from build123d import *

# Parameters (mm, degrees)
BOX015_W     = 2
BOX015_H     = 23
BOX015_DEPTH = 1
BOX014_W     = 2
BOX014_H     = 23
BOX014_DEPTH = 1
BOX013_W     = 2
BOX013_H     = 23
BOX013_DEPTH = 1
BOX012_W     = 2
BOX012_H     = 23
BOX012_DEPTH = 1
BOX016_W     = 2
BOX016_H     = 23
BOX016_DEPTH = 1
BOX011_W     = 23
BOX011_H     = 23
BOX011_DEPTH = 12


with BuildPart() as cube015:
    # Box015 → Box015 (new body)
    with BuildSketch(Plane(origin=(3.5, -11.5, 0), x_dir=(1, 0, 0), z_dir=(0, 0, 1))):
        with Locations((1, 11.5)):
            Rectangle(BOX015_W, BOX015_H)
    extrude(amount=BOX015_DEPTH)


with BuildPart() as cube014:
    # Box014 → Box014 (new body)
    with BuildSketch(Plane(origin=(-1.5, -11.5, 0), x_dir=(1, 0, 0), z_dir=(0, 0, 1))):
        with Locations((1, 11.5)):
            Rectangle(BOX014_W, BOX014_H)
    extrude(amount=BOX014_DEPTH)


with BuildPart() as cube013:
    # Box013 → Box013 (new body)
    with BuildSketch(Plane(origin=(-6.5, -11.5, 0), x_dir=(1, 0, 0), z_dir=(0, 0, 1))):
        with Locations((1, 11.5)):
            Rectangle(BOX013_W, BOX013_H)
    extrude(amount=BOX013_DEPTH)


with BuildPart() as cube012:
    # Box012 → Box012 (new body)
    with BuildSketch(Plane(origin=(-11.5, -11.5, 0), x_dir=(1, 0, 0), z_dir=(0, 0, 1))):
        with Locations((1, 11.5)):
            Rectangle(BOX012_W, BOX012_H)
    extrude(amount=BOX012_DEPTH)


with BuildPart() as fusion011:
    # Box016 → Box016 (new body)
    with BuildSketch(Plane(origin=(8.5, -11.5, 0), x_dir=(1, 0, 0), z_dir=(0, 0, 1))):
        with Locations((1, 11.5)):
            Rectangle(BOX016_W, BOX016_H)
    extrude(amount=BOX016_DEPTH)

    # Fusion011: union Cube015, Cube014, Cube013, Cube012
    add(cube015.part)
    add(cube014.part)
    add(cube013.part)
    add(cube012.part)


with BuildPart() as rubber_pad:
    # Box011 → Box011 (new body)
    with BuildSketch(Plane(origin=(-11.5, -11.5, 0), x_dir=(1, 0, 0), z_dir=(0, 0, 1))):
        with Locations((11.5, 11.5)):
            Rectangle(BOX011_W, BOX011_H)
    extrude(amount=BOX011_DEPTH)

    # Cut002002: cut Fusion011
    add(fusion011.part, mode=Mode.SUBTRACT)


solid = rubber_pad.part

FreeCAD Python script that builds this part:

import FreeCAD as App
import Part
import Sketcher

V = App.Vector
Q = App.Units.Quantity


def add_polygon(sketch, points):
    """Adds a closed chain of lines whose ends are joined by coincident constraints."""
    first, n = sketch.GeometryCount, len(points)
    for a, b in zip(points, points[1:] + points[:1]):
        sketch.addGeometry(Part.LineSegment(App.Vector(*a, 0), App.Vector(*b, 0)), False)
    for i in range(n):
        sketch.addConstraint(Sketcher.Constraint("Coincident", first + i, 2, first + (i + 1) % n, 1))

doc = App.newDocument("Part")
body = doc.addObject("PartDesign::Body", "Body")

# Sketch on XY plane
sketch1 = body.newObject("Sketcher::SketchObject", "Sketch")
sketch1.AttachmentSupport = (doc.getObject("XY_Plane"), [""])
sketch1.MapMode = "FlatFace"
add_polygon(sketch1, [(3.5, 11.5), (3.5, -11.5), (5.5, -11.5), (5.5, 11.5)])  # lines 0-3
sketch1.addConstraint(Sketcher.Constraint("Vertical", 0))
sketch1.addConstraint(Sketcher.Constraint("Horizontal", 1))
sketch1.addConstraint(Sketcher.Constraint("Vertical", 2))
sketch1.addConstraint(Sketcher.Constraint("Horizontal", 3))
sketch1.addConstraint(Sketcher.Constraint("DistanceX", 1, 1, 1, 2, Q("2 mm")))
sketch1.addConstraint(Sketcher.Constraint("DistanceY", 0, 2, 0, 1, Q("23 mm")))
sketch1.addConstraint(Sketcher.Constraint("DistanceX", -1, 1, 0, 2, Q("3.5 mm")))
sketch1.addConstraint(Sketcher.Constraint("DistanceY", 0, 2, -1, 1, Q("11.5 mm")))
pad1 = body.newObject("PartDesign::Pad", "Pad")
pad1.Profile = sketch1
pad1.Length = 1
body2 = doc.addObject("PartDesign::Body", "Body001")

# Sketch on XY plane
sketch2 = body2.newObject("Sketcher::SketchObject", "Sketch001")
sketch2.AttachmentSupport = (doc.getObject("XY_Plane001"), [""])
sketch2.MapMode = "FlatFace"
add_polygon(sketch2, [(-1.5, 11.5), (-1.5, -11.5), (0.5, -11.5), (0.5, 11.5)])  # lines 0-3
sketch2.addConstraint(Sketcher.Constraint("Vertical", 0))
sketch2.addConstraint(Sketcher.Constraint("Horizontal", 1))
sketch2.addConstraint(Sketcher.Constraint("Vertical", 2))
sketch2.addConstraint(Sketcher.Constraint("Horizontal", 3))
sketch2.addConstraint(Sketcher.Constraint("DistanceX", 1, 1, 1, 2, Q("2 mm")))
sketch2.addConstraint(Sketcher.Constraint("DistanceY", 0, 2, 0, 1, Q("23 mm")))
sketch2.addConstraint(Sketcher.Constraint("DistanceX", 0, 2, -1, 1, Q("1.5 mm")))
sketch2.addConstraint(Sketcher.Constraint("DistanceY", 0, 2, -1, 1, Q("11.5 mm")))
pad2 = body2.newObject("PartDesign::Pad", "Pad001")
pad2.Profile = sketch2
pad2.Length = 1
body3 = doc.addObject("PartDesign::Body", "Body002")

# Sketch on XY plane
sketch3 = body3.newObject("Sketcher::SketchObject", "Sketch002")
sketch3.AttachmentSupport = (doc.getObject("XY_Plane002"), [""])
sketch3.MapMode = "FlatFace"
add_polygon(sketch3, [(-6.5, 11.5), (-6.5, -11.5), (-4.5, -11.5), (-4.5, 11.5)])  # lines 0-3
sketch3.addConstraint(Sketcher.Constraint("Vertical", 0))
sketch3.addConstraint(Sketcher.Constraint("Horizontal", 1))
sketch3.addConstraint(Sketcher.Constraint("Vertical", 2))
sketch3.addConstraint(Sketcher.Constraint("Horizontal", 3))
sketch3.addConstraint(Sketcher.Constraint("DistanceX", 1, 1, 1, 2, Q("2 mm")))
sketch3.addConstraint(Sketcher.Constraint("DistanceY", 0, 2, 0, 1, Q("23 mm")))
sketch3.addConstraint(Sketcher.Constraint("DistanceX", 0, 2, -1, 1, Q("6.5 mm")))
sketch3.addConstraint(Sketcher.Constraint("DistanceY", 0, 2, -1, 1, Q("11.5 mm")))
pad3 = body3.newObject("PartDesign::Pad", "Pad002")
pad3.Profile = sketch3
pad3.Length = 1
body4 = doc.addObject("PartDesign::Body", "Body003")

# Sketch on XY plane
sketch4 = body4.newObject("Sketcher::SketchObject", "Sketch003")
sketch4.AttachmentSupport = (doc.getObject("XY_Plane003"), [""])
sketch4.MapMode = "FlatFace"
add_polygon(sketch4, [(-11.5, 11.5), (-11.5, -11.5), (-9.5, -11.5), (-9.5, 11.5)])  # lines 0-3
sketch4.addConstraint(Sketcher.Constraint("Vertical", 0))
sketch4.addConstraint(Sketcher.Constraint("Horizontal", 1))
sketch4.addConstraint(Sketcher.Constraint("Vertical", 2))
sketch4.addConstraint(Sketcher.Constraint("Horizontal", 3))
sketch4.addConstraint(Sketcher.Constraint("DistanceX", 1, 1, 1, 2, Q("2 mm")))
sketch4.addConstraint(Sketcher.Constraint("DistanceY", 0, 2, 0, 1, Q("23 mm")))
sketch4.addConstraint(Sketcher.Constraint("DistanceX", 0, 2, -1, 1, Q("11.5 mm")))
sketch4.addConstraint(Sketcher.Constraint("DistanceY", 0, 2, -1, 1, Q("11.5 mm")))
pad4 = body4.newObject("PartDesign::Pad", "Pad003")
pad4.Profile = sketch4
pad4.Length = 1
body5 = doc.addObject("PartDesign::Body", "Body004")
body5.AllowCompound = True

# Sketch on XY plane
sketch5 = body5.newObject("Sketcher::SketchObject", "Sketch004")
sketch5.AttachmentSupport = (doc.getObject("XY_Plane004"), [""])
sketch5.MapMode = "FlatFace"
add_polygon(sketch5, [(8.5, 11.5), (8.5, -11.5), (10.5, -11.5), (10.5, 11.5)])  # lines 0-3
sketch5.addConstraint(Sketcher.Constraint("Vertical", 0))
sketch5.addConstraint(Sketcher.Constraint("Horizontal", 1))
sketch5.addConstraint(Sketcher.Constraint("Vertical", 2))
sketch5.addConstraint(Sketcher.Constraint("Horizontal", 3))
sketch5.addConstraint(Sketcher.Constraint("DistanceX", 1, 1, 1, 2, Q("2 mm")))
sketch5.addConstraint(Sketcher.Constraint("DistanceY", 0, 2, 0, 1, Q("23 mm")))
sketch5.addConstraint(Sketcher.Constraint("DistanceX", -1, 1, 0, 2, Q("8.5 mm")))
sketch5.addConstraint(Sketcher.Constraint("DistanceY", 0, 2, -1, 1, Q("11.5 mm")))
pad5 = body5.newObject("PartDesign::Pad", "Pad004")
pad5.Profile = sketch5
pad5.Length = 1
doc.recompute()

boolean = body5.newObject("PartDesign::Boolean", "Boolean")
boolean.Type = "Fuse"
boolean.addObjects([body])
doc.recompute()

boolean2 = body5.newObject("PartDesign::Boolean", "Boolean001")
boolean2.Type = "Fuse"
boolean2.addObjects([body2])
doc.recompute()

boolean3 = body5.newObject("PartDesign::Boolean", "Boolean002")
boolean3.Type = "Fuse"
boolean3.addObjects([body3])
doc.recompute()

boolean4 = body5.newObject("PartDesign::Boolean", "Boolean003")
boolean4.Type = "Fuse"
boolean4.addObjects([body4])
body6 = doc.addObject("PartDesign::Body", "Body005")

# Sketch on XY plane
sketch6 = body6.newObject("Sketcher::SketchObject", "Sketch005")
sketch6.AttachmentSupport = (doc.getObject("XY_Plane005"), [""])
sketch6.MapMode = "FlatFace"
add_polygon(sketch6, [(-11.5, 11.5), (-11.5, -11.5), (11.5, -11.5), (11.5, 11.5)])  # lines 0-3
sketch6.addConstraint(Sketcher.Constraint("Vertical", 0))
sketch6.addConstraint(Sketcher.Constraint("Horizontal", 1))
sketch6.addConstraint(Sketcher.Constraint("Vertical", 2))
sketch6.addConstraint(Sketcher.Constraint("Horizontal", 3))
sketch6.addConstraint(Sketcher.Constraint("Symmetric", 0, 2, 2, 2, -1, 1))
sketch6.addConstraint(Sketcher.Constraint("Equal", 3, 0))
sketch6.addConstraint(Sketcher.Constraint("DistanceX", 1, 1, 1, 2, Q("23 mm")))
pad6 = body6.newObject("PartDesign::Pad", "Pad005")
pad6.Profile = sketch6
pad6.Length = 12
doc.recompute()

boolean5 = body6.newObject("PartDesign::Boolean", "Boolean004")
boolean5.Type = "Cut"
boolean5.addObjects([body5])

doc.recompute()
